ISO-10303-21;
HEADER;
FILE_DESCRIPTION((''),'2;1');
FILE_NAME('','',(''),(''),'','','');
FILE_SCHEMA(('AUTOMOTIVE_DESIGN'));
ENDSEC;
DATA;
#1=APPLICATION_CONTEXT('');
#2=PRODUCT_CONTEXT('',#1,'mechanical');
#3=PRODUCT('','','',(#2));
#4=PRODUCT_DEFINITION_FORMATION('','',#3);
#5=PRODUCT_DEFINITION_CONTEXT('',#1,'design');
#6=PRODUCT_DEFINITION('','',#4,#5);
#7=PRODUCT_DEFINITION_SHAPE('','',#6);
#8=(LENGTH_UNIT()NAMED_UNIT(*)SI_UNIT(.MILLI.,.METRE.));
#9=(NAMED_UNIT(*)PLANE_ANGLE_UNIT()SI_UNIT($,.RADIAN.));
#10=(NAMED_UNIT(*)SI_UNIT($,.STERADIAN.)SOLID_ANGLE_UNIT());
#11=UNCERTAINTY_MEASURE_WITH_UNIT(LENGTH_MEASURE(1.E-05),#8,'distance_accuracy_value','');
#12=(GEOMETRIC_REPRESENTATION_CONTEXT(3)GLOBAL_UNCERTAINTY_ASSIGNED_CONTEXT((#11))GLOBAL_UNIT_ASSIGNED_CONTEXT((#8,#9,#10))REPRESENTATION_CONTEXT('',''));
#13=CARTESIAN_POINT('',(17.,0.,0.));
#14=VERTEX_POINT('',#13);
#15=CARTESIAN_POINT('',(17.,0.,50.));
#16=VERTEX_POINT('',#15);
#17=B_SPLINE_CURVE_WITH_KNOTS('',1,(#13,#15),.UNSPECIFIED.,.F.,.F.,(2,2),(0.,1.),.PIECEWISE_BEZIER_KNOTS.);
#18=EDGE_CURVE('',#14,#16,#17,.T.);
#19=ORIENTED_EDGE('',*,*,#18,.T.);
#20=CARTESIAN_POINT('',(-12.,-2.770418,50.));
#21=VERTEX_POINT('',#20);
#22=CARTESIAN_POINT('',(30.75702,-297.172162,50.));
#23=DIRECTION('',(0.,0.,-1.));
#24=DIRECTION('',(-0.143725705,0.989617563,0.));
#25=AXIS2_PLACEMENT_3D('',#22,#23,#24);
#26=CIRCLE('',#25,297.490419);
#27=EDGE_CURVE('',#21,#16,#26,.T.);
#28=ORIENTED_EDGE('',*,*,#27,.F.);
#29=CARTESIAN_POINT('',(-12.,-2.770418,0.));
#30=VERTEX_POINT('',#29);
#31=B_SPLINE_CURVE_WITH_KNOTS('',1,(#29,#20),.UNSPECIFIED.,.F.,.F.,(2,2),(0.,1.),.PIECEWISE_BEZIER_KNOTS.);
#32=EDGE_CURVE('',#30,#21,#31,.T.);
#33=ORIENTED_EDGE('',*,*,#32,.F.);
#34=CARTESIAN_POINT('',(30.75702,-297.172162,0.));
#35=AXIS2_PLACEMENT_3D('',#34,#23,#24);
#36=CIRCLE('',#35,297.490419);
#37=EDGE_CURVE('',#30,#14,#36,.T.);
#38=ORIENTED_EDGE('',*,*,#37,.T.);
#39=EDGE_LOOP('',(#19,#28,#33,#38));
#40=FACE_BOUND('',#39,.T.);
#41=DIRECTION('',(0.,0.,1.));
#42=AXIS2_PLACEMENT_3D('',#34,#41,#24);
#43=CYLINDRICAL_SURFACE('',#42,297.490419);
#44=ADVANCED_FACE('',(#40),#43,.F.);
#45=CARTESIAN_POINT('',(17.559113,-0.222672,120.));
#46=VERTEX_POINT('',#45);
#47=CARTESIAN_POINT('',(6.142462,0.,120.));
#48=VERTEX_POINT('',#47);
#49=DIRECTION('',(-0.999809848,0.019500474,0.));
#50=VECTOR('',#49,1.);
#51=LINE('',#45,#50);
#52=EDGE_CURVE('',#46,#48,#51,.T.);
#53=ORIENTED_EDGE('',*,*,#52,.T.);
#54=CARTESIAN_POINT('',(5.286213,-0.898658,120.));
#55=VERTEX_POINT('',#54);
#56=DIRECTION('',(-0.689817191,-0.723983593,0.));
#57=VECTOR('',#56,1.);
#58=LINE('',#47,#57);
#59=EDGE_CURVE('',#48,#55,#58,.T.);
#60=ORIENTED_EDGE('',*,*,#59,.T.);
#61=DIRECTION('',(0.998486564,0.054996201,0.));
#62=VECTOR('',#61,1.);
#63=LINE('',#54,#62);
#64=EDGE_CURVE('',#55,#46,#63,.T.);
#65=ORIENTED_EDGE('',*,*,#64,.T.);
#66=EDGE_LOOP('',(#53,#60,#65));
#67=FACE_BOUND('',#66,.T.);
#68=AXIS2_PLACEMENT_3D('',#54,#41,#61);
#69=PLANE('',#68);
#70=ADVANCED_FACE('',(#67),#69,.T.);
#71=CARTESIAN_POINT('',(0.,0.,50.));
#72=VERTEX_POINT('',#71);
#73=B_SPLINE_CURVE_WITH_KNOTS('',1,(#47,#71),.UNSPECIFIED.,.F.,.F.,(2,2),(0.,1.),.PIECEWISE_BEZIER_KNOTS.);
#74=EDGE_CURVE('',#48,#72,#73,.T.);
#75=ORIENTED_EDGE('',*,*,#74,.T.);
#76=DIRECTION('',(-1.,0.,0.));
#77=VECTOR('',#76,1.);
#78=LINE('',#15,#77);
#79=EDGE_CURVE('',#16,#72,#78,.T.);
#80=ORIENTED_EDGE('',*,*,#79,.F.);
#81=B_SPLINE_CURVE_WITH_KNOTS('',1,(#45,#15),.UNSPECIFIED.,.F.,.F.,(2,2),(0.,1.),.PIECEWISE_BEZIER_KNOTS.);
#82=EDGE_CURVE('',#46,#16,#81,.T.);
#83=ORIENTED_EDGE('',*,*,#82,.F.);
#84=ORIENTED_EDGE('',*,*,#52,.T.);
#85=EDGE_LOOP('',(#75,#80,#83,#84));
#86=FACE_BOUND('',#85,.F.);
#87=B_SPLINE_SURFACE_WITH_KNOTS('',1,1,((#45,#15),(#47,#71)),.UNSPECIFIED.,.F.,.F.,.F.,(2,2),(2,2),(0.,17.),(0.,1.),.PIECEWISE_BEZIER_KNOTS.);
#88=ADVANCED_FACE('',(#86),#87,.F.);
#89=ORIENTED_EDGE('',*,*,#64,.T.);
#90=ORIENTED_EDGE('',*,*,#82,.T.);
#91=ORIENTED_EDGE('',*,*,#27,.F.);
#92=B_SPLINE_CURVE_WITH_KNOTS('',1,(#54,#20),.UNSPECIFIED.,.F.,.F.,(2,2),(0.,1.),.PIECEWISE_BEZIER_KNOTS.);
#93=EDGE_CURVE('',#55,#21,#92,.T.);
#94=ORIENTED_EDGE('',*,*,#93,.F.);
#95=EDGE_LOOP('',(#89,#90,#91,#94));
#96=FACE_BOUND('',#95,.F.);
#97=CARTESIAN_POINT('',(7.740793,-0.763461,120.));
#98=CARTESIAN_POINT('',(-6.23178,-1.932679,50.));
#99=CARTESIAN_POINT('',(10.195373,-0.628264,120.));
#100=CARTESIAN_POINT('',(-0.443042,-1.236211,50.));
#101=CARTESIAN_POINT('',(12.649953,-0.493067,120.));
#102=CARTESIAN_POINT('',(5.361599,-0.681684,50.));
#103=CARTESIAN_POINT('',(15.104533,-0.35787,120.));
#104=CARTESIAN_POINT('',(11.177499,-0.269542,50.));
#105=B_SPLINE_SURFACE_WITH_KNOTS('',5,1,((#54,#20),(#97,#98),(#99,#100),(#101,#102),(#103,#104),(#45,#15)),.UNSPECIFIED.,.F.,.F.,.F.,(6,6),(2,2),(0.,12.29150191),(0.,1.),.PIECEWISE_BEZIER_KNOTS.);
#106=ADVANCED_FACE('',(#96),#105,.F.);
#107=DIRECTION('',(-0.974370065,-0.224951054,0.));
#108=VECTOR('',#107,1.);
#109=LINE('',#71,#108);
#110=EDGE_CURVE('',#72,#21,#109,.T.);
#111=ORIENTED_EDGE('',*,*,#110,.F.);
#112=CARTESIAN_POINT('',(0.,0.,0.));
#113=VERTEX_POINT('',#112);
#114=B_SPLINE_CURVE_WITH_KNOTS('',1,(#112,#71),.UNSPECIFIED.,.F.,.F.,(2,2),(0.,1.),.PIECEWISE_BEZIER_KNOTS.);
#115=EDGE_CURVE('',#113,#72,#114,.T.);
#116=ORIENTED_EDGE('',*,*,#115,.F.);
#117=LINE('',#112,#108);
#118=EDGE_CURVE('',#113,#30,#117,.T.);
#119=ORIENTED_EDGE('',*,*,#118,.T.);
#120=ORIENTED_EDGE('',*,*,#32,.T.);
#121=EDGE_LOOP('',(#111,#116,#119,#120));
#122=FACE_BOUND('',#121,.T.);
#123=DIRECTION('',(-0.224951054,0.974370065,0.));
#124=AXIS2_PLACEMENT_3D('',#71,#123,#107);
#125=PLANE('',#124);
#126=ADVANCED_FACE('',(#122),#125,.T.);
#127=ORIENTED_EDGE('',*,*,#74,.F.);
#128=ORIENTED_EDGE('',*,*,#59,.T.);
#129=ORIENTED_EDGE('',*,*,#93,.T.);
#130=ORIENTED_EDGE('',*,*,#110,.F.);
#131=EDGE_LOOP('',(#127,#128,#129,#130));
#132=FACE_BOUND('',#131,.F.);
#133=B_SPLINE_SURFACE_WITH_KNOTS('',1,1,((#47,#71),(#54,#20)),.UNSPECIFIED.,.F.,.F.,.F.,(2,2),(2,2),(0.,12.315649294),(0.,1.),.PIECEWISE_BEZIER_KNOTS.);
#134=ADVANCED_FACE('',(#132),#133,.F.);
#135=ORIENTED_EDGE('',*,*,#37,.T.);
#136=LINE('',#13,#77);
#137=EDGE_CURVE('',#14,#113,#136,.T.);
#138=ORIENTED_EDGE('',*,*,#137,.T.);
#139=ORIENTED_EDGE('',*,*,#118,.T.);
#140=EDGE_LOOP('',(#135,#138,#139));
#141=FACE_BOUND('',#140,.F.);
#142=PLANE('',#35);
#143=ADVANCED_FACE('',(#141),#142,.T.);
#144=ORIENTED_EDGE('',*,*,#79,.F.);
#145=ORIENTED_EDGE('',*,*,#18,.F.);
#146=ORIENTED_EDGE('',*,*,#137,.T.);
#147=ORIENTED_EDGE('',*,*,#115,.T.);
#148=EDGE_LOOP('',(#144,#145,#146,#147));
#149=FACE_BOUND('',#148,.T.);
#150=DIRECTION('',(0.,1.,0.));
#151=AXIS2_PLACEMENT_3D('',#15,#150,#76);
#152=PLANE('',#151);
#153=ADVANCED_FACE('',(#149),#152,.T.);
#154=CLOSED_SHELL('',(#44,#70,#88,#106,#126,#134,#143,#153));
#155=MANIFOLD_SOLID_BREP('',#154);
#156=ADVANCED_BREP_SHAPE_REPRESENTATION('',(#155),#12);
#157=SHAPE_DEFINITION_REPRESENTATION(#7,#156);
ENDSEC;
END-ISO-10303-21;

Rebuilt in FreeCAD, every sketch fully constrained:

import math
import FreeCAD as App
import Part
import Sketcher
Q = App.Units.Quantity

doc = App.newDocument("Part")
body = doc.addObject("PartDesign::Body", "Body")

sketch1 = doc.addObject("Sketcher::SketchObject", "Sketch")
body.addObject(sketch1)
sketch1.AttachmentSupport = (doc.XY_Plane, [""])
sketch1.MapMode = "FlatFace"
sketch1.addGeometry([
    Part.LineSegment(App.Vector(17, 0, 0), App.Vector(0, 0, 0)),
    Part.LineSegment(App.Vector(0, 0, 0), App.Vector(-12, -3, 0)),
    Part.ArcOfCircle(Part.Circle(App.Vector(31, -297, 0), App.Vector(0, 0, 1), 297), math.radians(92.65), math.radians(98.26)),
], False)
sketch1.addConstraint([
    Sketcher.Constraint("Coincident", 0, 2, 1, 1),
    Sketcher.Constraint("Coincident", 1, 2, 2, 2),
    Sketcher.Constraint("Coincident", 2, 1, 0, 1),
    Sketcher.Constraint("Horizontal", 0),
    Sketcher.Constraint("Coincident", 0, 2, -1, 1),
    Sketcher.Constraint("DistanceX", 0, 2, 0, 1, Q("17 mm")),
    Sketcher.Constraint("Angle", 1, Q("-167 deg")),
    Sketcher.Constraint("DistanceX", 1, 2, -1, 1, Q("12 mm")),
    Sketcher.Constraint("Radius", 2, Q("297.490419 mm")),
])

sketch2 = doc.addObject("Sketcher::SketchObject", "Sketch001")
body.addObject(sketch2)
sketch2.AttachmentSupport = (doc.XY_Plane, [""])
sketch2.MapMode = "FlatFace"
sketch2.AttachmentOffset = App.Placement(App.Vector(0, 0, 50), App.Rotation())
sketch2.addGeometry([
    Part.LineSegment(App.Vector(0, 0, 0), App.Vector(-12, -3, 0)),
    Part.ArcOfCircle(Part.Circle(App.Vector(31, -297, 0), App.Vector(0, 0, 1), 297), math.radians(92.65), math.radians(98.26)),
    Part.LineSegment(App.Vector(17, 0, 0), App.Vector(0, 0, 0)),
], False)
sketch2.addConstraint([
    Sketcher.Constraint("Coincident", 0, 2, 1, 2),
    Sketcher.Constraint("Coincident", 1, 1, 2, 1),
    Sketcher.Constraint("Coincident", 2, 2, 0, 1),
    Sketcher.Constraint("Horizontal", 2),
    Sketcher.Constraint("Coincident", 2, 2, -1, 1),
    Sketcher.Constraint("DistanceX", 2, 2, 2, 1, Q("17 mm")),
    Sketcher.Constraint("Angle", 0, Q("-167 deg")),
    Sketcher.Constraint("DistanceX", 0, 2, -1, 1, Q("12 mm")),
    Sketcher.Constraint("Radius", 1, Q("297.490419 mm")),
])

additiveloft = doc.addObject("PartDesign::AdditiveLoft", "AdditiveLoft")
body.addObject(additiveloft)
additiveloft.Profile = sketch1
additiveloft.Sections = [sketch2]

sketch3 = doc.addObject("Sketcher::SketchObject", "Sketch002")
body.addObject(sketch3)
sketch3.AttachmentSupport = (doc.XY_Plane, [""])
sketch3.MapMode = "FlatFace"
sketch3.AttachmentOffset = App.Placement(App.Vector(0, 0, 120), App.Rotation())
sketch3.addGeometry([
    Part.LineSegment(App.Vector(5.3, -0.9, 0), App.Vector(17.6, -0.2, 0)),
    Part.LineSegment(App.Vector(17.6, -0.2, 0), App.Vector(6.1, 0, 0)),
    Part.LineSegment(App.Vector(6.1, 0, 0), App.Vector(5.3, -0.9, 0)),
], False)
sketch3.addConstraint([
    Sketcher.Constraint("Coincident", 0, 2, 1, 1),
    Sketcher.Constraint("Coincident", 1, 2, 2, 1),
    Sketcher.Constraint("Coincident", 2, 2, 0, 1),
    Sketcher.Constraint("PointOnObject", 1, 2, -1),
    Sketcher.Constraint("Distance", 0, Q("12.291502 mm")),
    Sketcher.Constraint("DistanceX", 2, 2, 0, 2, Q("12.2729 mm")),
    Sketcher.Constraint("Distance", 2, Q("1.241269 mm")),
    Sketcher.Constraint("DistanceY", 2, 2, -1, 1, Q("0.898658 mm")),
    Sketcher.Constraint("DistanceX", -1, 1, 0, 2, Q("17.559113 mm")),
])

sketch4 = doc.addObject("Sketcher::SketchObject", "Sketch003")
body.addObject(sketch4)
sketch4.AttachmentSupport = (doc.XY_Plane, [""])
sketch4.MapMode = "FlatFace"
sketch4.AttachmentOffset = App.Placement(App.Vector(0, 0, 50), App.Rotation())
sketch4.addGeometry([
    Part.LineSegment(App.Vector(0, 0, 0), App.Vector(-12, -3, 0)),
    Part.ArcOfCircle(Part.Circle(App.Vector(31, -297, 0), App.Vector(0, 0, 1), 297), math.radians(92.65), math.radians(98.26)),
    Part.LineSegment(App.Vector(17, 0, 0), App.Vector(0, 0, 0)),
], False)
sketch4.addConstraint([
    Sketcher.Constraint("Coincident", 0, 2, 1, 2),
    Sketcher.Constraint("Coincident", 1, 1, 2, 1),
    Sketcher.Constraint("Coincident", 2, 2, 0, 1),
    Sketcher.Constraint("Horizontal", 2),
    Sketcher.Constraint("Coincident", 2, 2, -1, 1),
    Sketcher.Constraint("DistanceX", 2, 2, 2, 1, Q("17 mm")),
    Sketcher.Constraint("Angle", 0, Q("-167 deg")),
    Sketcher.Constraint("DistanceX", 0, 2, -1, 1, Q("12 mm")),
    Sketcher.Constraint("Radius", 1, Q("297.490419 mm")),
])

additiveloft2 = doc.addObject("PartDesign::AdditiveLoft", "AdditiveLoft001")
body.addObject(additiveloft2)
additiveloft2.Profile = sketch3
additiveloft2.Sections = [sketch4]

doc.recompute()
